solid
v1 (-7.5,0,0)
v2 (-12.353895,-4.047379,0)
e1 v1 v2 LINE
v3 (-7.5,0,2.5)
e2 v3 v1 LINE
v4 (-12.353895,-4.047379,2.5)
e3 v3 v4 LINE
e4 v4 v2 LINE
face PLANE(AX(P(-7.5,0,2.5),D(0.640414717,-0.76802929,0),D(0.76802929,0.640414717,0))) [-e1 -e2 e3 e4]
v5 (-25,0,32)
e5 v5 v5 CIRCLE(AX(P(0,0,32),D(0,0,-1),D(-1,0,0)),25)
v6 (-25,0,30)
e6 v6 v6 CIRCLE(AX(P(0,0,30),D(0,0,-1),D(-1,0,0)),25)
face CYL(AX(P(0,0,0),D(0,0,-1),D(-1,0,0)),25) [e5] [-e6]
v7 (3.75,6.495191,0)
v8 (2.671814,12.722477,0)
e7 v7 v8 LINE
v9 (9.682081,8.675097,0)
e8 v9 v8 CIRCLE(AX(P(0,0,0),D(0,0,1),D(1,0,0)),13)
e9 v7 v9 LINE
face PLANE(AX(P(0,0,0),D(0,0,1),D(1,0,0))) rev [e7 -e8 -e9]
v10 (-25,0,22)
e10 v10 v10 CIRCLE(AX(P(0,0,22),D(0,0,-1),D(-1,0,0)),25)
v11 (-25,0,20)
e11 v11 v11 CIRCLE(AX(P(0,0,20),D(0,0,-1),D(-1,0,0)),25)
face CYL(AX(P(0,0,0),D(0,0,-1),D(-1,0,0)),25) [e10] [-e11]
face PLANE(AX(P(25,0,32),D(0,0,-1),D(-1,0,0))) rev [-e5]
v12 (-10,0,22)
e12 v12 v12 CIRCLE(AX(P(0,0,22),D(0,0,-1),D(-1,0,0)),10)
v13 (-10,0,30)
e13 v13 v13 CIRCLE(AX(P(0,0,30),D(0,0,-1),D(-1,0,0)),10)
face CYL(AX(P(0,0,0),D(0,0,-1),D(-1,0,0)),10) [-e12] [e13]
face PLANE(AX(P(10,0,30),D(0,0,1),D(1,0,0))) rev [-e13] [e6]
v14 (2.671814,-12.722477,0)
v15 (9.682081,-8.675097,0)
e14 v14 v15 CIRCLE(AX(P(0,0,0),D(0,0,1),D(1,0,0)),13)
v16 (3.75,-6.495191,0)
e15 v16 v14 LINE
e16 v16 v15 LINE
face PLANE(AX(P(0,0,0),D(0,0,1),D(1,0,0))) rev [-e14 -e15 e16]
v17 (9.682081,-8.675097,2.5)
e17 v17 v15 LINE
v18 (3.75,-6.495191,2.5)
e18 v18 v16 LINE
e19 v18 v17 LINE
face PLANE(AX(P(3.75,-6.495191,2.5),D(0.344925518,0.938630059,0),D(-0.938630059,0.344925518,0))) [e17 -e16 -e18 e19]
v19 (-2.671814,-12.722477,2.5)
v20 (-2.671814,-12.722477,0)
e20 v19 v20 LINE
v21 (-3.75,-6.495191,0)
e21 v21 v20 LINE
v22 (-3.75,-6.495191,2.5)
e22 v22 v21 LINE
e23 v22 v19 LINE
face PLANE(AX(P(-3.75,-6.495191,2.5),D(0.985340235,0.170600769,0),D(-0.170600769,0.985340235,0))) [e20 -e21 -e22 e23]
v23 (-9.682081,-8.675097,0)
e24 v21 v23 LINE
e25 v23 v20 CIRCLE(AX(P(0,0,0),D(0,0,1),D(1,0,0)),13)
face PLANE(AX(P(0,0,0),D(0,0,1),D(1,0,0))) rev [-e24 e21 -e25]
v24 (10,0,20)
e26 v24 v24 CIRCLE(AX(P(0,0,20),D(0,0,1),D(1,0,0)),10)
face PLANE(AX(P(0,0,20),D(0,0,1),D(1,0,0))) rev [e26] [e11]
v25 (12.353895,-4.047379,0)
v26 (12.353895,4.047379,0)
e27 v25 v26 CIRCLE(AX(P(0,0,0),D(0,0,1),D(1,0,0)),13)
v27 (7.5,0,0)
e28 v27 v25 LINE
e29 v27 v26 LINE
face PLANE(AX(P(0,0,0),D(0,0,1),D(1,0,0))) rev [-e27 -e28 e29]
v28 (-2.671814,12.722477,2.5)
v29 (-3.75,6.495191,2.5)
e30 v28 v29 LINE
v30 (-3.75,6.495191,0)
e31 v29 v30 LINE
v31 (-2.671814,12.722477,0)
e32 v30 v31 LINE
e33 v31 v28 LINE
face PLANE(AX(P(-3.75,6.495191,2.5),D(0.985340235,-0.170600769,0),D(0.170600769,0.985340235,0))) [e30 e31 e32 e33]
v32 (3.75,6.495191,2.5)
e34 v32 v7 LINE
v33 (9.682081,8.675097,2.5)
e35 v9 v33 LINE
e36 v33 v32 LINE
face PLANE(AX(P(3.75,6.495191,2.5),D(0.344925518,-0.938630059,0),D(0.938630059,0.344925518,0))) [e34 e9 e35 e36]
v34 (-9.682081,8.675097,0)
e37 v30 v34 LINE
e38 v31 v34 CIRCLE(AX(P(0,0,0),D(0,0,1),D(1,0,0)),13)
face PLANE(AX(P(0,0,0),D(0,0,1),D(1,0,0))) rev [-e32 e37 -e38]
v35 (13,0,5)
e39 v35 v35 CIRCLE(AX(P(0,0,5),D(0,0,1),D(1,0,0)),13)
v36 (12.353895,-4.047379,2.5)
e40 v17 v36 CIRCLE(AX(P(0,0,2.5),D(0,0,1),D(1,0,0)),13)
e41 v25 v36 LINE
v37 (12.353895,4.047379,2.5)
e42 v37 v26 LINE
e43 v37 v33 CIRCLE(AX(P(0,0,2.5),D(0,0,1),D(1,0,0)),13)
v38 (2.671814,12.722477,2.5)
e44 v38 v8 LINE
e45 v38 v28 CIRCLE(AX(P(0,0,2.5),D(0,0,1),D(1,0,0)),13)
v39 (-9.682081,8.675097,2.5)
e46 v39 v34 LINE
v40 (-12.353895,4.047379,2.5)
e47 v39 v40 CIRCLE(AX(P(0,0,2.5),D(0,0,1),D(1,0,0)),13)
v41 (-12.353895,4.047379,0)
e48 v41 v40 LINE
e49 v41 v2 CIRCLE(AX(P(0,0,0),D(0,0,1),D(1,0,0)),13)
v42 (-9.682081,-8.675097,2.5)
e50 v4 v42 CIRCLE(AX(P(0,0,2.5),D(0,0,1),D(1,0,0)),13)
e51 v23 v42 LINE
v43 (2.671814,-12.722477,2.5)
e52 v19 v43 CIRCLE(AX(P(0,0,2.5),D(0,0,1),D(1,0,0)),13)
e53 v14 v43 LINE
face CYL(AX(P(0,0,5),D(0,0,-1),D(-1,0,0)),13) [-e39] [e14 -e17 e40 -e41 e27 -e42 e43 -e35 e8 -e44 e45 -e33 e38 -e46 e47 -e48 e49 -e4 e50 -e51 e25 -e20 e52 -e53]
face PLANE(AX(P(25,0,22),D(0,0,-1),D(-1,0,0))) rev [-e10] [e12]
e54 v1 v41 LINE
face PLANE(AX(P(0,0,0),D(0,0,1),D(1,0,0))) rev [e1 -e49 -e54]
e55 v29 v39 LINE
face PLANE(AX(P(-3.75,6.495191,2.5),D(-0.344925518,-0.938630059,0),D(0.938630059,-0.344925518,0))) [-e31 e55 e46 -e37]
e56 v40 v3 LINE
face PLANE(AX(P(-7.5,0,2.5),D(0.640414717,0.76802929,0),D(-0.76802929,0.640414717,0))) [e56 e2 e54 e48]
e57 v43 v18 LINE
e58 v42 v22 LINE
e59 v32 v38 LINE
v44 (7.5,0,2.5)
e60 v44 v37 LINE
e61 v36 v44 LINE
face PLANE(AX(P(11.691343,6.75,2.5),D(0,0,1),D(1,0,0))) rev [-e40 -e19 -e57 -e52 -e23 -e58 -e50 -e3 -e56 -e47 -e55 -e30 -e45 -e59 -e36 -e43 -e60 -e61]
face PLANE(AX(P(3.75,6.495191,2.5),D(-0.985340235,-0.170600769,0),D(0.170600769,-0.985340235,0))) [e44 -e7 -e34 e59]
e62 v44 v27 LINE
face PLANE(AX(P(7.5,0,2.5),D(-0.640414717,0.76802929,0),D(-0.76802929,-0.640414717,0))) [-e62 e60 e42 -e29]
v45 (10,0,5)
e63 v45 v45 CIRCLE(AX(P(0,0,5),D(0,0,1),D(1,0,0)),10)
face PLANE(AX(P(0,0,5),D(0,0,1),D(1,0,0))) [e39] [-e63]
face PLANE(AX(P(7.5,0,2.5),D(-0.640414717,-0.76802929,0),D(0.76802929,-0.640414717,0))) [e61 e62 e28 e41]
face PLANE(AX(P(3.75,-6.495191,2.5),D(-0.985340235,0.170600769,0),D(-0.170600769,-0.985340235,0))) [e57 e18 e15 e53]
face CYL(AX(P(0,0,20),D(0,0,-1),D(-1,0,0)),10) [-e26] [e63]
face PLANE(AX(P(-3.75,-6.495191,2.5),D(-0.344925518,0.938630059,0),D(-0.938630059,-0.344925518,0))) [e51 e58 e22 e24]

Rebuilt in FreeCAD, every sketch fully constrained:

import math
import FreeCAD as App
import Part
import Sketcher


def add_polygon(sketch, points):
    """Adds a closed chain of lines whose ends are joined by coincident constraints."""
    first, n = sketch.GeometryCount, len(points)
    for a, b in zip(points, points[1:] + points[:1]):
        sketch.addGeometry(Part.LineSegment(App.Vector(*a, 0), App.Vector(*b, 0)), False)
    for i in range(n):
        sketch.addConstraint(Sketcher.Constraint("Coincident", first + i, 2, first + (i + 1) % n, 1))

doc = App.newDocument("Part")
body = doc.addObject("PartDesign::Body", "Body")

sketch1 = body.newObject("Sketcher::SketchObject", "Sketch")
sketch1.AttachmentSupport = (doc.getObject("XY_Plane"), [""])
sketch1.MapMode = "FlatFace"
sketch1.addGeometry(Part.Circle(App.Vector(0, 0, 0), App.Vector(0, 0, 1), 13), False)
sketch1.addConstraint([
    Sketcher.Constraint("Coincident", 0, 3, -1, 1),
    Sketcher.Constraint("Diameter", 0, 26.0),
])
pad1 = body.newObject("PartDesign::Pad", "Pad")
pad1.Profile = sketch1
pad1.Length = 5

sketch2 = body.newObject("Sketcher::SketchObject", "Sketch001")
sketch2.AttachmentSupport = (doc.getObject("XY_Plane"), [""])
sketch2.MapMode = "FlatFace"
sketch2.addGeometry([
    Part.LineSegment(App.Vector(3.8, 6.5, 0), App.Vector(2.5, 13.9, 0)),
    Part.ArcOfCircle(Part.Circle(App.Vector(0, 13.5, 0), App.Vector(0, 0, 1), 2.5), math.radians(10), math.radians(170)),
    Part.LineSegment(App.Vector(-2.5, 13.9, 0), App.Vector(-3.8, 6.5, 0)),
    Part.LineSegment(App.Vector(-3.8, 6.5, 0), App.Vector(-10.8, 9.1, 0)),
    Part.ArcOfCircle(Part.Circle(App.Vector(-11.7, 6.8, 0), App.Vector(0, 0, 1), 2.5), math.radians(70), math.radians(230)),
    Part.LineSegment(App.Vector(-13.3, 4.8, 0), App.Vector(-7.5, 0, 0)),
    Part.LineSegment(App.Vector(-7.5, 0, 0), App.Vector(-13.3, -4.8, 0)),
    Part.ArcOfCircle(Part.Circle(App.Vector(-11.7, -6.8, 0), App.Vector(0, 0, 1), 2.5), math.radians(130), math.radians(290)),
    Part.LineSegment(App.Vector(-10.8, -9.1, 0), App.Vector(-3.8, -6.5, 0)),
    Part.LineSegment(App.Vector(-3.8, -6.5, 0), App.Vector(-2.5, -13.9, 0)),
    Part.ArcOfCircle(Part.Circle(App.Vector(0, -13.5, 0), App.Vector(0, 0, 1), 2.5), math.radians(-170), math.radians(-10)),
    Part.LineSegment(App.Vector(2.5, -13.9, 0), App.Vector(3.8, -6.5, 0)),
    Part.LineSegment(App.Vector(3.8, -6.5, 0), App.Vector(10.8, -9.1, 0)),
    Part.ArcOfCircle(Part.Circle(App.Vector(11.7, -6.8, 0), App.Vector(0, 0, 1), 2.5), math.radians(-110), math.radians(50)),
    Part.LineSegment(App.Vector(13.3, -4.8, 0), App.Vector(7.5, 0, 0)),
    Part.LineSegment(App.Vector(7.5, 0, 0), App.Vector(13.3, 4.8, 0)),
    Part.ArcOfCircle(Part.Circle(App.Vector(11.7, 6.8, 0), App.Vector(0, 0, 1), 2.5), math.radians(-50), math.radians(110)),
    Part.LineSegment(App.Vector(10.8, 9.1, 0), App.Vector(3.8, 6.5, 0)),
], False)
sketch2.addConstraint([
    Sketcher.Constraint("Tangent", 0, 2, 1, 1),
    Sketcher.Constraint("Tangent", 1, 2, 2, 1),
    Sketcher.Constraint("Coincident", 2, 2, 3, 1),
    Sketcher.Constraint("Tangent", 3, 2, 4, 1),
    Sketcher.Constraint("Tangent", 4, 2, 5, 1),
    Sketcher.Constraint("Coincident", 5, 2, 6, 1),
    Sketcher.Constraint("Tangent", 6, 2, 7, 1),
    Sketcher.Constraint("Tangent", 7, 2, 8, 1),
    Sketcher.Constraint("Coincident", 8, 2, 9, 1),
    Sketcher.Constraint("Tangent", 9, 2, 10, 1),
    Sketcher.Constraint("Tangent", 10, 2, 11, 1),
    Sketcher.Constraint("Coincident", 11, 2, 12, 1),
    Sketcher.Constraint("Tangent", 12, 2, 13, 1),
    Sketcher.Constraint("Tangent", 13, 2, 14, 1),
    Sketcher.Constraint("Coincident", 14, 2, 15, 1),
    Sketcher.Constraint("Tangent", 15, 2, 16, 1),
    Sketcher.Constraint("Tangent", 16, 2, 17, 1),
    Sketcher.Constraint("Coincident", 17, 2, 0, 1),
    Sketcher.Constraint("Equal", 1, 4),
    Sketcher.Constraint("Equal", 4, 7),
    Sketcher.Constraint("Equal", 7, 10),
    Sketcher.Constraint("Equal", 10, 13),
    Sketcher.Constraint("Equal", 13, 16),
    Sketcher.Constraint("Symmetric", 1, 3, 10, 3, -1, 1),
    Sketcher.Constraint("Symmetric", 4, 3, 13, 3, -1, 1),
    Sketcher.Constraint("Symmetric", 7, 3, 16, 3, -1, 1),
    Sketcher.Constraint("Symmetric", 2, 2, 11, 2, -1, 1),
    Sketcher.Constraint("Symmetric", 5, 2, 14, 2, -1, 1),
    Sketcher.Constraint("Symmetric", 8, 2, 17, 2, -1, 1),
    Sketcher.Constraint("Symmetric", 7, 3, 13, 3, -2),
    Sketcher.Constraint("Symmetric", 0, 2, 1, 2, -2),
    Sketcher.Constraint("PointOnObject", 5, 2, -1),
    Sketcher.Constraint("Horizontal", 8, 2, 11, 2),
    Sketcher.Constraint("Equal", 2, 3),
    Sketcher.Constraint("Equal", 3, 5),
    Sketcher.Constraint("Radius", 1, 2.5),
    Sketcher.Constraint("DistanceY", 10, 3, 1, 3, 27.0),
    Sketcher.Constraint("DistanceX", 5, 2, -1, 1, 7.5),
    Sketcher.Constraint("DistanceY", 7, 3, 4, 3, 13.5),
    Sketcher.Constraint("DistanceX", 8, 2, 11, 2, 7.5),
])
pocket1 = body.newObject("PartDesign::Pocket", "Pocket")
pocket1.Profile = sketch2
pocket1.Length = 2.5
pocket1.Reversed = True

sketch3 = body.newObject("Sketcher::SketchObject", "Sketch002")
sketch3.AttachmentSupport = (doc.getObject("XY_Plane"), [""])
sketch3.MapMode = "FlatFace"
sketch3.AttachmentOffset = App.Placement(App.Vector(0, 0, 5), App.Rotation())
sketch3.addGeometry(Part.Circle(App.Vector(0, 0, 0), App.Vector(0, 0, 1), 10), False)
sketch3.addConstraint([
    Sketcher.Constraint("Coincident", 0, 3, -1, 1),
    Sketcher.Constraint("Diameter", 0, 20.0),
])
pad2 = body.newObject("PartDesign::Pad", "Pad001")
pad2.Profile = sketch3
pad2.Length = 15

sketch4 = body.newObject("Sketcher::SketchObject", "Sketch003")
sketch4.AttachmentSupport = (doc.getObject("XZ_Plane"), [""])
sketch4.MapMode = "FlatFace"
add_polygon(sketch4, [(25, 20), (0, 20), (0, 32), (25, 32), (25, 30), (10, 30), (10, 22), (25, 22)])
sketch4.addConstraint([
    Sketcher.Constraint("Horizontal", 0),
    Sketcher.Constraint("Vertical", 1),
    Sketcher.Constraint("Horizontal", 2),
    Sketcher.Constraint("Vertical", 3),
    Sketcher.Constraint("Horizontal", 4),
    Sketcher.Constraint("Vertical", 5),
    Sketcher.Constraint("Horizontal", 6),
    Sketcher.Constraint("Vertical", 7),
    Sketcher.Constraint("PointOnObject", 0, 2, -2),
    Sketcher.Constraint("Vertical", 3, 2, 6, 2),
    Sketcher.Constraint("Equal", 3, 7),
    Sketcher.Constraint("DistanceX", 0, 2, 0, 1, 25.0),
    Sketcher.Constraint("DistanceX", 4, 2, 4, 1, 15.0),
    Sketcher.Constraint("DistanceY", 1, 1, 1, 2, 12.0),
    Sketcher.Constraint("DistanceY", 3, 2, 3, 1, 2.0),
    Sketcher.Constraint("DistanceY", -1, 1, 0, 2, 20.0),
])
revolution = body.newObject("PartDesign::Revolution", "Revolution")
revolution.Profile = sketch4
revolution.ReferenceAxis = (sketch4, ["V_Axis"])
revolution.Angle = 360

doc.recompute()
